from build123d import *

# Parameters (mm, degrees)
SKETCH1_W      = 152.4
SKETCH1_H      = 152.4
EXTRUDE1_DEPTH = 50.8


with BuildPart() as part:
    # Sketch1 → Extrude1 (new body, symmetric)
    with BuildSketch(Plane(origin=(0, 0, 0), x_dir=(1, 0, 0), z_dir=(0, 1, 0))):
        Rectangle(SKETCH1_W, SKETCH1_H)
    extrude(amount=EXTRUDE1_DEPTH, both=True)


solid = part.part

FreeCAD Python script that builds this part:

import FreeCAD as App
import Part
import Sketcher
Q = App.Units.Quantity


def add_polygon(sketch, points):
    """Adds a closed chain of lines whose ends are joined by coincident constraints."""
    first, n = sketch.GeometryCount, len(points)
    for a, b in zip(points, points[1:] + points[:1]):
        sketch.addGeometry(Part.LineSegment(App.Vector(*a, 0), App.Vector(*b, 0)), False)
    for i in range(n):
        sketch.addConstraint(Sketcher.Constraint("Coincident", first + i, 2, first + (i + 1) % n, 1))

doc = App.newDocument("Part")
body = doc.addObject("PartDesign::Body", "Body")

# Sketch on XZ plane
sketch1 = body.newObject("Sketcher::SketchObject", "Sketch")
sketch1.AttachmentSupport = (doc.getObject("XZ_Plane"), [""])
sketch1.MapMode = "FlatFace"
add_polygon(sketch1, [(-76, -76), (-76, 76), (76, 76), (76, -76)])  # lines 0-3
sketch1.addConstraint([
    Sketcher.Constraint("Vertical", 0),
    Sketcher.Constraint("Horizontal", 1),
    Sketcher.Constraint("Vertical", 2),
    Sketcher.Constraint("Horizontal", 3),
    Sketcher.Constraint("Symmetric", 0, 2, 2, 2, -1, 1),
    Sketcher.Constraint("Equal", 3, 0),
    Sketcher.Constraint("DistanceX", 1, 1, 1, 2, Q("6 in")),
])
pad1 = body.newObject("PartDesign::Pad", "Pad")
pad1.Profile = sketch1
pad1.Length = Q("4 in")
pad1.Midplane = True

doc.recompute()
